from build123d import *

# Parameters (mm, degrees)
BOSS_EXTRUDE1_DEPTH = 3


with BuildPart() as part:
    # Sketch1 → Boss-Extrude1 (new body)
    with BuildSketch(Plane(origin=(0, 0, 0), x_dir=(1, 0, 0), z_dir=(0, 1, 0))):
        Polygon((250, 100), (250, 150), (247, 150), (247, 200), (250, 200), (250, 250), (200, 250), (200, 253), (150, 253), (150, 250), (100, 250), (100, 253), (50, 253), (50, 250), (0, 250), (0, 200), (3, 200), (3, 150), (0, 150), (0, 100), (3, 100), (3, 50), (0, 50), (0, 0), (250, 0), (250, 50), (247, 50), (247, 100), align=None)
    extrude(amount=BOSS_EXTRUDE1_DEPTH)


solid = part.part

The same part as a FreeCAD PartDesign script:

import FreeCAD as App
import Part
import Sketcher

doc = App.newDocument("Part")
body = doc.addObject("PartDesign::Body", "Body")

# Sketch on XZ plane
sketch1 = body.newObject("Sketcher::SketchObject", "Sketch")
sketch1.AttachmentSupport = (doc.getObject("XZ_Plane"), [""])
sketch1.MapMode = "FlatFace"
sketch1.addGeometry([
    Part.LineSegment(App.Vector(250, -100, 0), App.Vector(250, -150, 0)),  # 0
    Part.LineSegment(App.Vector(250, -150, 0), App.Vector(247, -150, 0)),  # 1
    Part.LineSegment(App.Vector(247, -150, 0), App.Vector(247, -200, 0)),  # 2
    Part.LineSegment(App.Vector(247, -200, 0), App.Vector(250, -200, 0)),  # 3
    Part.LineSegment(App.Vector(250, -200, 0), App.Vector(250, -250, 0)),  # 4
    Part.LineSegment(App.Vector(250, -250, 0), App.Vector(200, -250, 0)),  # 5
    Part.LineSegment(App.Vector(200, -250, 0), App.Vector(200, -253, 0)),  # 6
    Part.LineSegment(App.Vector(200, -253, 0), App.Vector(150, -253, 0)),  # 7
    Part.LineSegment(App.Vector(150, -253, 0), App.Vector(150, -250, 0)),  # 8
    Part.LineSegment(App.Vector(150, -250, 0), App.Vector(100, -250, 0)),  # 9
    Part.LineSegment(App.Vector(100, -250, 0), App.Vector(100, -253, 0)),  # 10
    Part.LineSegment(App.Vector(100, -253, 0), App.Vector(50, -253, 0)),  # 11
    Part.LineSegment(App.Vector(50, -253, 0), App.Vector(50, -250, 0)),  # 12
    Part.LineSegment(App.Vector(50, -250, 0), App.Vector(0, -250, 0)),  # 13
    Part.LineSegment(App.Vector(0, -250, 0), App.Vector(0, -200, 0)),  # 14
    Part.LineSegment(App.Vector(0, -200, 0), App.Vector(3, -200, 0)),  # 15
    Part.LineSegment(App.Vector(3, -200, 0), App.Vector(3, -150, 0)),  # 16
    Part.LineSegment(App.Vector(3, -150, 0), App.Vector(0, -150, 0)),  # 17
    Part.LineSegment(App.Vector(0, -150, 0), App.Vector(0, -100, 0)),  # 18
    Part.LineSegment(App.Vector(0, -100, 0), App.Vector(3, -100, 0)),  # 19
    Part.LineSegment(App.Vector(3, -100, 0), App.Vector(3, -50, 0)),  # 20
    Part.LineSegment(App.Vector(3, -50, 0), App.Vector(0, -50, 0)),  # 21
    Part.LineSegment(App.Vector(0, -50, 0), App.Vector(0, 0, 0)),  # 22
    Part.LineSegment(App.Vector(0, 0, 0), App.Vector(250, 0, 0)),  # 23
    Part.LineSegment(App.Vector(250, 0, 0), App.Vector(250, -50, 0)),  # 24
    Part.LineSegment(App.Vector(250, -50, 0), App.Vector(247, -50, 0)),  # 25
    Part.LineSegment(App.Vector(247, -50, 0), App.Vector(247, -100, 0)),  # 26
    Part.LineSegment(App.Vector(247, -100, 0), App.Vector(250, -100, 0)),  # 27
], False)
sketch1.addConstraint([
    Sketcher.Constraint("Coincident", 0, 2, 1, 1),
    Sketcher.Constraint("Coincident", 1, 2, 2, 1),
    Sketcher.Constraint("Coincident", 2, 2, 3, 1),
    Sketcher.Constraint("Coincident", 3, 2, 4, 1),
    Sketcher.Constraint("Coincident", 4, 2, 5, 1),
    Sketcher.Constraint("Coincident", 5, 2, 6, 1),
    Sketcher.Constraint("Coincident", 6, 2, 7, 1),
    Sketcher.Constraint("Coincident", 7, 2, 8, 1),
    Sketcher.Constraint("Coincident", 8, 2, 9, 1),
    Sketcher.Constraint("Coincident", 9, 2, 10, 1),
    Sketcher.Constraint("Coincident", 10, 2, 11, 1),
    Sketcher.Constraint("Coincident", 11, 2, 12, 1),
    Sketcher.Constraint("Coincident", 12, 2, 13, 1),
    Sketcher.Constraint("Coincident", 13, 2, 14, 1),
    Sketcher.Constraint("Coincident", 14, 2, 15, 1),
    Sketcher.Constraint("Coincident", 15, 2, 16, 1),
    Sketcher.Constraint("Coincident", 16, 2, 17, 1),
    Sketcher.Constraint("Coincident", 17, 2, 18, 1),
    Sketcher.Constraint("Coincident", 18, 2, 19, 1),
    Sketcher.Constraint("Coincident", 19, 2, 20, 1),
    Sketcher.Constraint("Coincident", 20, 2, 21, 1),
    Sketcher.Constraint("Coincident", 21, 2, 22, 1),
    Sketcher.Constraint("Coincident", 22, 2, 23, 1),
    Sketcher.Constraint("Coincident", 23, 2, 24, 1),
    Sketcher.Constraint("Coincident", 24, 2, 25, 1),
    Sketcher.Constraint("Coincident", 25, 2, 26, 1),
    Sketcher.Constraint("Coincident", 26, 2, 27, 1),
    Sketcher.Constraint("Coincident", 27, 2, 0, 1),
    Sketcher.Constraint("Vertical", 0),
    Sketcher.Constraint("Horizontal", 1),
    Sketcher.Constraint("Vertical", 2),
    Sketcher.Constraint("Horizontal", 3),
    Sketcher.Constraint("Vertical", 4),
    Sketcher.Constraint("Horizontal", 5),
    Sketcher.Constraint("Vertical", 6),
    Sketcher.Constraint("Horizontal", 7),
    Sketcher.Constraint("Vertical", 8),
    Sketcher.Constraint("Horizontal", 9),
    Sketcher.Constraint("Vertical", 10),
    Sketcher.Constraint("Horizontal", 11),
    Sketcher.Constraint("Vertical", 12),
    Sketcher.Constraint("Horizontal", 13),
    Sketcher.Constraint("Vertical", 14),
    Sketcher.Constraint("Horizontal", 15),
    Sketcher.Constraint("Vertical", 16),
    Sketcher.Constraint("Horizontal", 17),
    Sketcher.Constraint("Vertical", 18),
    Sketcher.Constraint("Horizontal", 19),
    Sketcher.Constraint("Vertical", 20),
    Sketcher.Constraint("Horizontal", 21),
    Sketcher.Constraint("Vertical", 22),
    Sketcher.Constraint("Horizontal", 23),
    Sketcher.Constraint("Vertical", 24),
    Sketcher.Constraint("Horizontal", 25),
    Sketcher.Constraint("Vertical", 26),
    Sketcher.Constraint("Horizontal", 27),
    Sketcher.Constraint("Coincident", 22, 2, -1, 1),
    Sketcher.Constraint("PointOnObject", 13, 2, -2),
    Sketcher.Constraint("PointOnObject", 17, 2, -2),
    Sketcher.Constraint("Horizontal", 5, 2, 8, 2),
    Sketcher.Constraint("Horizontal", 7, 2, 10, 2),
    Sketcher.Constraint("Horizontal", 9, 2, 12, 2),
    Sketcher.Constraint("Horizontal", 3, 2, 14, 2),
    Sketcher.Constraint("Horizontal", 1, 2, 16, 2),
    Sketcher.Constraint("Horizontal", 21, 2, 24, 2),
    Sketcher.Constraint("Horizontal", 19, 2, 26, 2),
    Sketcher.Constraint("Vertical", 0, 2, 3, 2),
    Sketcher.Constraint("Vertical", 16, 2, 19, 2),
    Sketcher.Constraint("Vertical", 4, 2, 23, 2),
    Sketcher.Constraint("Vertical", 2, 2, 25, 2),
    Sketcher.Constraint("Equal", 5, 7),
    Sketcher.Constraint("Equal", 7, 9),
    Sketcher.Constraint("Equal", 9, 11),
    Sketcher.Constraint("Equal", 11, 13),
    Sketcher.Constraint("Equal", 3, 15),
    Sketcher.Constraint("Equal", 13, 0),
    Sketcher.Constraint("Equal", 0, 2),
    Sketcher.Constraint("Equal", 2, 4),
    Sketcher.Constraint("Equal", 27, 6),
    Sketcher.Constraint("Equal", 18, 20),
    Sketcher.Constraint("Equal", 20, 22),
    Sketcher.Constraint("DistanceX", 1, 2, 1, 1, 3.0),
    Sketcher.Constraint("DistanceX", 5, 2, 5, 1, 50.0),
])
pad1 = body.newObject("PartDesign::Pad", "Pad")
pad1.Profile = sketch1
pad1.Length = 3
pad1.Reversed = True

doc.recompute()
